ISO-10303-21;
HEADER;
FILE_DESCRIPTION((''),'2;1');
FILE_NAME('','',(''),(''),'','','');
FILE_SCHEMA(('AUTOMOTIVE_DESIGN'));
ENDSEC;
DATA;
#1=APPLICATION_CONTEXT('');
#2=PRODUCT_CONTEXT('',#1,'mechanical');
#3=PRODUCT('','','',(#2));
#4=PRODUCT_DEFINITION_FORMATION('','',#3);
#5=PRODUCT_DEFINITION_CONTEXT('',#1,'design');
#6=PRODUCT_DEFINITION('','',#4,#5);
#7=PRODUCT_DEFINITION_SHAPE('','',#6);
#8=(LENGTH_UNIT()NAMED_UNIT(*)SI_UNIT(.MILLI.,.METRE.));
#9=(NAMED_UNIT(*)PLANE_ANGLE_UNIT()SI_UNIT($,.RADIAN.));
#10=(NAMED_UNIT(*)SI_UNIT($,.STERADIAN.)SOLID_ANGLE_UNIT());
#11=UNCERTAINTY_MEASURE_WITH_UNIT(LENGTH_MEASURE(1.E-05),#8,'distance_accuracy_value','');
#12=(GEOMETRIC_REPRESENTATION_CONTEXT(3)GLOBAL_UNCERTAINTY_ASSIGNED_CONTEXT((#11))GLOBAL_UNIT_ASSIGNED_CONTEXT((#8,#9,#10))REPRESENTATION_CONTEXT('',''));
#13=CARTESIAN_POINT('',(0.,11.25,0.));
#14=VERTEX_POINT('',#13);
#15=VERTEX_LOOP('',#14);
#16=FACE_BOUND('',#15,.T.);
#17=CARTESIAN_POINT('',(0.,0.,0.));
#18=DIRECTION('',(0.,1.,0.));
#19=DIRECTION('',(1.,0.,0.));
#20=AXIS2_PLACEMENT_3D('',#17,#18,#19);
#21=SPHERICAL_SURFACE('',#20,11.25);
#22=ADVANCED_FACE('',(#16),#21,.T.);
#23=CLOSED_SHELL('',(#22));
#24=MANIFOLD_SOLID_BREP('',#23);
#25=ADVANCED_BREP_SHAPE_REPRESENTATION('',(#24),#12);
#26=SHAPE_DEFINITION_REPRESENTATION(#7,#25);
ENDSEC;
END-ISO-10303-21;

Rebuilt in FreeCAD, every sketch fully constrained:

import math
import FreeCAD as App
import Part
import Sketcher

V = App.Vector
Q = App.Units.Quantity

doc = App.newDocument("Part")
body = doc.addObject("PartDesign::Body", "Body")

# Sketch on XY plane
sketch1 = body.newObject("Sketcher::SketchObject", "Sketch")
sketch1.AttachmentSupport = (doc.getObject("XY_Plane"), [""])
sketch1.MapMode = "FlatFace"
sketch1.addGeometry(Part.LineSegment(V(0, 11, 0), V(0, -11, 0)), False)
sketch1.addGeometry(Part.ArcOfCircle(Part.Circle(V(0, 0, 0), V(0, 0, 1), 11), math.radians(-90), math.radians(90)), False)
sketch1.addConstraint(Sketcher.Constraint("Coincident", 0, 1, 1, 2))
sketch1.addConstraint(Sketcher.Constraint("Coincident", 1, 1, 0, 2))
sketch1.addConstraint(Sketcher.Constraint("Vertical", 0))
sketch1.addConstraint(Sketcher.Constraint("Coincident", 1, 3, -1, 1))
sketch1.addConstraint(Sketcher.Constraint("PointOnObject", 0, 1, -2))
sketch1.addConstraint(Sketcher.Constraint("Radius", 1, Q("11.25 mm")))
revolution = body.newObject("PartDesign::Revolution", "Revolution")
revolution.Profile = sketch1
revolution.ReferenceAxis = (sketch1, ["V_Axis"])
revolution.Angle = 360

doc.recompute()
